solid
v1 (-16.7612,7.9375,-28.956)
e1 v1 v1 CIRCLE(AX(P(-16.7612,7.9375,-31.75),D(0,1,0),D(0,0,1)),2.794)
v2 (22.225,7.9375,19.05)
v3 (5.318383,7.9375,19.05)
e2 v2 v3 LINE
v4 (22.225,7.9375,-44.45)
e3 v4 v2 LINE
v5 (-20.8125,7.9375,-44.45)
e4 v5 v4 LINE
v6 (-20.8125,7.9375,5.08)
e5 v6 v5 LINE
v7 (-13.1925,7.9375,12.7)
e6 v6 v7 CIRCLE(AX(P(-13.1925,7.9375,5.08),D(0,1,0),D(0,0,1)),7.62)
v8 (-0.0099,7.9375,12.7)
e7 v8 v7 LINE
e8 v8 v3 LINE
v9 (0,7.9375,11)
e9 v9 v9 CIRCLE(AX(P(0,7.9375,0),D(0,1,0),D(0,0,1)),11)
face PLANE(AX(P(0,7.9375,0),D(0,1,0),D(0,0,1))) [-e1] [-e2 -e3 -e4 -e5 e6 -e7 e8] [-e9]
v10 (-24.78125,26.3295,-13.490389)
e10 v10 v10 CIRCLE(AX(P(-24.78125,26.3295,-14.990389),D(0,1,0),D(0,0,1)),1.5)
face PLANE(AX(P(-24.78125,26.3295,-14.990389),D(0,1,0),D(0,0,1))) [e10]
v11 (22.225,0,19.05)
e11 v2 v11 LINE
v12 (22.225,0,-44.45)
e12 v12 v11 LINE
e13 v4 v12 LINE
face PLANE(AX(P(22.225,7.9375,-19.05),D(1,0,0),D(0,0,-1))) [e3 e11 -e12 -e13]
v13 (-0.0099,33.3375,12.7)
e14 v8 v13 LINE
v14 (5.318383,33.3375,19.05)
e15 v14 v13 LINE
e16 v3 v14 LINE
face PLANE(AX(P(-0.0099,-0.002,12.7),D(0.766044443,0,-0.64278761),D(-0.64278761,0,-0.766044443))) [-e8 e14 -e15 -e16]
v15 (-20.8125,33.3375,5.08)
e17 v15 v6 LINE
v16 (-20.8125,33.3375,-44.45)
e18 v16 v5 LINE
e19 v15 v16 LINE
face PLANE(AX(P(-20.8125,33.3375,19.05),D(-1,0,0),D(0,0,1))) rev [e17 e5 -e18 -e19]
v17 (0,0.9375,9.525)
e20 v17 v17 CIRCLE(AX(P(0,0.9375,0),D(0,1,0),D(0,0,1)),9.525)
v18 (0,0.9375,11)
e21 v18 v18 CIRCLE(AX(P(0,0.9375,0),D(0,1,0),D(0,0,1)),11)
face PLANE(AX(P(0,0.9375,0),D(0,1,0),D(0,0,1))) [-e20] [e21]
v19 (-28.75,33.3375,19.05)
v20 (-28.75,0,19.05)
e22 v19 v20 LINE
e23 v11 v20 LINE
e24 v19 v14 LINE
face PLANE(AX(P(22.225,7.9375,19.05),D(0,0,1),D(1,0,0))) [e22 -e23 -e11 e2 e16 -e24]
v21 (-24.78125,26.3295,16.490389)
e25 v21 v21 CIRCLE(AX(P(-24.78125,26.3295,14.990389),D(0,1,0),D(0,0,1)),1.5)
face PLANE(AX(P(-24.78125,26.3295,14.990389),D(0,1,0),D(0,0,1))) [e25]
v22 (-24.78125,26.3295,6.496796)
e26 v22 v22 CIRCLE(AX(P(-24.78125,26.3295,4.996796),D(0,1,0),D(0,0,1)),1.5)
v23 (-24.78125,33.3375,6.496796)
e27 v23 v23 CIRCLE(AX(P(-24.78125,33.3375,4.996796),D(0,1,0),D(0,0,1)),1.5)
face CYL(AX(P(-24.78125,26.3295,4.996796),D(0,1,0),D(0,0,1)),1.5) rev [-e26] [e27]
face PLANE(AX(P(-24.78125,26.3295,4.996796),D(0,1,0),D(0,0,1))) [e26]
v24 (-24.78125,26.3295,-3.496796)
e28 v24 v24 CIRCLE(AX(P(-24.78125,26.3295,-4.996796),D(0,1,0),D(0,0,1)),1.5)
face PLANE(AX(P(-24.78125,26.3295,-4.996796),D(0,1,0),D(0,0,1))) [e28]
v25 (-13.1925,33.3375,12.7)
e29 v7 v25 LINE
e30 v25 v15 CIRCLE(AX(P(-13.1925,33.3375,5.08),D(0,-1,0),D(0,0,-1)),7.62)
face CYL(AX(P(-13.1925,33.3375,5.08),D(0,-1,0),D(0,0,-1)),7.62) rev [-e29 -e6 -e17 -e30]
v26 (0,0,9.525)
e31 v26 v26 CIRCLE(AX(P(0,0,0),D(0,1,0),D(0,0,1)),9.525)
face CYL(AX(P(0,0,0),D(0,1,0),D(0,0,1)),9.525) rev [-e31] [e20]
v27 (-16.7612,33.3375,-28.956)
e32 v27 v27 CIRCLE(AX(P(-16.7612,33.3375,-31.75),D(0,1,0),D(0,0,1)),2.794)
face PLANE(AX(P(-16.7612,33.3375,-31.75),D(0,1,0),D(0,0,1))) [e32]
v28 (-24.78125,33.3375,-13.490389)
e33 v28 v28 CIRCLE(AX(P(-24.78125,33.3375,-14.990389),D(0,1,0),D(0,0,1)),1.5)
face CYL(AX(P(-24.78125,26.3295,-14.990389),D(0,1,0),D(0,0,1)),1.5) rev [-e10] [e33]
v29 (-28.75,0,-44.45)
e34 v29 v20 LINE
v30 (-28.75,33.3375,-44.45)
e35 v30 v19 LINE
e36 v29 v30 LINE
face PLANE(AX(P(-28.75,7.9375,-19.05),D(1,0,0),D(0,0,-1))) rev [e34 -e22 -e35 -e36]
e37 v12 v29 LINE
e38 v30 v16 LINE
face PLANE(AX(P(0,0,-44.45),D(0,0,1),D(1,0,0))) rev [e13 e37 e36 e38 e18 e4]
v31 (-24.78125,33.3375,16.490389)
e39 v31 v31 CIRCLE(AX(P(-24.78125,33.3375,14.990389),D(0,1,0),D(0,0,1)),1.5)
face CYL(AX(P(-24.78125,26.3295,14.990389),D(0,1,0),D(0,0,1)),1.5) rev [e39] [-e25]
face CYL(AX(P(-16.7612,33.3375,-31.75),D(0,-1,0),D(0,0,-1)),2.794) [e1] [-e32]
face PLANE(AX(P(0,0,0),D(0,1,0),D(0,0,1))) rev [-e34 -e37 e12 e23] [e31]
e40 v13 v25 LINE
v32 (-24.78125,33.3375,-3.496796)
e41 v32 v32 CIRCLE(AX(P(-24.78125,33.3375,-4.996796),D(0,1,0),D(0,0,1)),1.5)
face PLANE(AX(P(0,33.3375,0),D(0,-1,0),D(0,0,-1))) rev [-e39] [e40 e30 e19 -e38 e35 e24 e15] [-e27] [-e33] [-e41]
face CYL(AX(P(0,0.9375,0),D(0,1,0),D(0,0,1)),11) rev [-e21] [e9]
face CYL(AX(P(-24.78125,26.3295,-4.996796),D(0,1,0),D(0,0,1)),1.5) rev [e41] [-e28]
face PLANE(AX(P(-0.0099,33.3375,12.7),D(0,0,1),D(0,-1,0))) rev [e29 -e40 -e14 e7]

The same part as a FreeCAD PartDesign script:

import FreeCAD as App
import Part
import Sketcher
from FreeCAD import Vector
Q = App.Units.Quantity


def edges_at(feature, points):
    """Names of the edges that pass closest to the given points."""
    edges = feature.Shape.Edges
    near = lambda p: min(range(len(edges)), key=lambda i: edges[i].distToShape(Part.Vertex(*p))[0])
    return sorted({f"Edge{near(p) + 1}" for p in points})

doc = App.newDocument("Part")
body = doc.addObject("PartDesign::Body", "Body")

# Sketch on XZ plane
sketch1 = doc.addObject("Sketcher::SketchObject", "Sketch")
body.addObject(sketch1)
sketch1.AttachmentSupport = (doc.XZ_Plane, [""])
sketch1.MapMode = "FlatFace"
sketch1.addGeometry([
    Part.LineSegment(Vector(-29, -19, 0), Vector(-29, 19, 0)),
    Part.LineSegment(Vector(-29, 19, 0), Vector(22, 19, 0)),
    Part.LineSegment(Vector(22, 19, 0), Vector(22, -19, 0)),
    Part.LineSegment(Vector(22, -19, 0), Vector(-29, -19, 0)),
], False)
sketch1.addConstraint([
    Sketcher.Constraint("Coincident", 0, 2, 1, 1),
    Sketcher.Constraint("Coincident", 1, 2, 2, 1),
    Sketcher.Constraint("Coincident", 2, 2, 3, 1),
    Sketcher.Constraint("Coincident", 3, 2, 0, 1),
    Sketcher.Constraint("Vertical", 0),
    Sketcher.Constraint("Horizontal", 1),
    Sketcher.Constraint("Vertical", 2),
    Sketcher.Constraint("Horizontal", 3),
    Sketcher.Constraint("DistanceY", 0, 1, 0, 2, Q("1.5 in")),
    Sketcher.Constraint("DistanceY", -1, 1, 0, 2, Q("0.75 in")),
    Sketcher.Constraint("DistanceX", -1, 1, 1, 2, Q("0.875 in")),
    Sketcher.Constraint("DistanceX", 1, 1, 1, 2, 50.975),
])
pad1 = doc.addObject("PartDesign::Pad", "Pad")
body.addObject(pad1)
pad1.Profile = sketch1
pad1.Length = Q("0.3125 in")
pad1.Reversed = True

# Sketch on XZ plane
sketch2 = doc.addObject("Sketcher::SketchObject", "Sketch001")
body.addObject(sketch2)
sketch2.AttachmentSupport = (doc.XZ_Plane, [""])
sketch2.MapMode = "FlatFace"
sketch2.AttachmentOffset = App.Placement(Vector(0, 0, -0.3125 * 25.4), App.Rotation())
sketch2.addGeometry(Part.Circle(Vector(0, 0, 0), Vector(0, 0, 1), 11), False)
sketch2.addConstraint([
    Sketcher.Constraint("Coincident", 0, 3, -1, 1),
    Sketcher.Constraint("Diameter", 0, 22.0),
])
pocket1 = doc.addObject("PartDesign::Pocket", "Pocket")
body.addObject(pocket1)
pocket1.Profile = sketch2
pocket1.Length = 7
pocket1.Reversed = True

# Sketch on XZ plane
sketch3 = doc.addObject("Sketcher::SketchObject", "Sketch002")
body.addObject(sketch3)
sketch3.AttachmentSupport = (doc.XZ_Plane, [""])
sketch3.MapMode = "FlatFace"
sketch3.AttachmentOffset = App.Placement(Vector(0, 0, -0.9375), App.Rotation())
sketch3.addGeometry(Part.Circle(Vector(0, 0, 0), Vector(0, 0, 1), 10), False)
sketch3.addConstraint([
    Sketcher.Constraint("Coincident", 0, 3, -1, 1),
    Sketcher.Constraint("Diameter", 0, Q("0.75 in")),
])
pocket2 = doc.addObject("PartDesign::Pocket", "Pocket001")
body.addObject(pocket2)
pocket2.Profile = sketch3
pocket2.Type = "ThroughAll"
pocket2.Midplane = True

# Sketch on XZ plane
sketch4 = doc.addObject("Sketcher::SketchObject", "Sketch003")
body.addObject(sketch4)
sketch4.AttachmentSupport = (doc.XZ_Plane, [""])
sketch4.MapMode = "FlatFace"
sketch4.AttachmentOffset = App.Placement(Vector(0, 0, -0.3125 * 25.4), App.Rotation())
sketch4.addGeometry([
    Part.LineSegment(Vector(-29, -19, 0), Vector(-29, 19, 0)),
    Part.LineSegment(Vector(-29, 19, 0), Vector(-21, 19, 0)),
    Part.LineSegment(Vector(-21, 19, 0), Vector(-21, -19, 0)),
    Part.LineSegment(Vector(-21, -19, 0), Vector(-29, -19, 0)),
], False)
sketch4.addConstraint([
    Sketcher.Constraint("Coincident", 0, 2, 1, 1),
    Sketcher.Constraint("Coincident", 1, 2, 2, 1),
    Sketcher.Constraint("Coincident", 2, 2, 3, 1),
    Sketcher.Constraint("Coincident", 3, 2, 0, 1),
    Sketcher.Constraint("Vertical", 0),
    Sketcher.Constraint("Horizontal", 1),
    Sketcher.Constraint("Vertical", 2),
    Sketcher.Constraint("Horizontal", 3),
    Sketcher.Constraint("DistanceY", 0, 1, 0, 2, Q("1.5 in")),
    Sketcher.Constraint("DistanceX", 1, 1, 1, 2, Q("0.3125 in")),
    Sketcher.Constraint("DistanceY", -1, 1, 0, 2, Q("0.75 in")),
    Sketcher.Constraint("DistanceX", 0, 2, -1, 1, 28.75),
])
pad2 = doc.addObject("PartDesign::Pad", "Pad001")
body.addObject(pad2)
pad2.Profile = sketch4
pad2.Length = Q("1 in")
pad2.Reversed = True

# Sketch on YZ plane
sketch5 = doc.addObject("Sketcher::SketchObject", "Sketch004")
body.addObject(sketch5)
sketch5.AttachmentSupport = (doc.YZ_Plane, [""])
sketch5.MapMode = "FlatFace"
sketch5.AttachmentOffset = App.Placement(Vector(0, 0, -20.8125), App.Rotation())
sketch5.addGeometry([
    Part.LineSegment(Vector(33, 19, 0), Vector(8, 19, 0)),
    Part.LineSegment(Vector(8, 19, 0), Vector(8, 13, 0)),
    Part.LineSegment(Vector(8, 13, 0), Vector(33, 13, 0)),
    Part.LineSegment(Vector(33, 13, 0), Vector(33, 19, 0)),
], False)
sketch5.addConstraint([
    Sketcher.Constraint("Coincident", 0, 2, 1, 1),
    Sketcher.Constraint("Coincident", 1, 2, 2, 1),
    Sketcher.Constraint("Coincident", 2, 2, 3, 1),
    Sketcher.Constraint("Coincident", 3, 2, 0, 1),
    Sketcher.Constraint("Horizontal", 0),
    Sketcher.Constraint("Vertical", 1),
    Sketcher.Constraint("Horizontal", 2),
    Sketcher.Constraint("Vertical", 3),
    Sketcher.Constraint("DistanceX", 0, 2, 0, 1, Q("1 in")),
    Sketcher.Constraint("DistanceY", 1, 2, 1, 1, Q("0.25 in")),
    Sketcher.Constraint("DistanceY", -1, 1, 1, 2, Q("0.5 in")),
    Sketcher.Constraint("DistanceX", -1, 1, 0, 2, Q("0.3125 in")),
])
pad3 = doc.addObject("PartDesign::Pad", "Pad002")
body.addObject(pad3)
pad3.Profile = sketch5
pad3.Length = Q("0.819 in")

# Sketch on XZ plane
sketch6 = doc.addObject("Sketcher::SketchObject", "Sketch005")
body.addObject(sketch6)
sketch6.AttachmentSupport = (doc.XZ_Plane, [""])
sketch6.MapMode = "FlatFace"
sketch6.AttachmentOffset = App.Placement(Vector(0, 0, -1.3125 * 25.4), App.Rotation())
sketch6.addGeometry([
    Part.LineSegment(Vector(5, 19, 0), Vector(0, 13, 0)),
    Part.LineSegment(Vector(0, 13, 0), Vector(0, 19, 0)),
    Part.LineSegment(Vector(0, 19, 0), Vector(5, 19, 0)),
], False)
sketch6.addConstraint([
    Sketcher.Constraint("Coincident", 0, 2, 1, 1),
    Sketcher.Constraint("Coincident", 1, 2, 2, 1),
    Sketcher.Constraint("Coincident", 2, 2, 0, 1),
    Sketcher.Constraint("Vertical", 1),
    Sketcher.Constraint("Horizontal", 2),
    Sketcher.Constraint("Angle", 0, Q("-130 deg")),
    Sketcher.Constraint("DistanceY", 1, 1, 1, 2, Q("0.25 in")),
    Sketcher.Constraint("DistanceY", -1, 1, 0, 2, Q("0.5 in")),
    Sketcher.Constraint("DistanceX", 0, 2, -1, 1, 0.0099),
])
pad4 = doc.addObject("PartDesign::Pad", "Pad003")
body.addObject(pad4)
pad4.Profile = sketch6
pad4.Type = "UpToFirst"
doc.recompute()

fillet = doc.addObject("PartDesign::Fillet", "Fillet")
body.addObject(fillet)
fillet.Base = (pad4, edges_at(pad4, [(-20.812, 20.637, 12.7)]))
fillet.Radius = Q("0.3 in")

# Sketch on XZ plane
sketch7 = doc.addObject("Sketcher::SketchObject", "Sketch006")
body.addObject(sketch7)
sketch7.AttachmentSupport = (doc.XZ_Plane, [""])
sketch7.MapMode = "FlatFace"
sketch7.AttachmentOffset = App.Placement(Vector(0, 0, -1.3125 * 25.4), App.Rotation())
sketch7.addGeometry([
    Part.Circle(Vector(-24.8, -15, 0), Vector(0, 0, 1), 1.5),
    Part.Circle(Vector(-24.8, -5, 0), Vector(0, 0, 1), 1.5),
    Part.Circle(Vector(-24.8, 15, 0), Vector(0, 0, 1), 1.5),
    Part.Circle(Vector(-24.8, 5, 0), Vector(0, 0, 1), 1.5),
], False)
sketch7.addConstraint([
    Sketcher.Constraint("Equal", 0, 1),
    Sketcher.Constraint("Equal", 1, 2),
    Sketcher.Constraint("Equal", 2, 3),
    Sketcher.Constraint("Symmetric", 0, 3, 2, 3, -1),
    Sketcher.Constraint("Symmetric", 1, 3, 3, 3, -1),
    Sketcher.Constraint("Vertical", 0, 3, 1, 3),
    Sketcher.Constraint("Diameter", 0, 3.0),
    Sketcher.Constraint("DistanceX", 0, 3, -1, 1, 24.78125),
    Sketcher.Constraint("DistanceY", 0, 3, -1, 1, 14.990389),
    Sketcher.Constraint("DistanceY", 1, 3, -1, 1, 4.996796),
])
pocket3 = doc.addObject("PartDesign::Pocket", "Pocket002")
body.addObject(pocket3)
pocket3.Profile = sketch7
pocket3.Length = 7.008
pocket3.Reversed = True

# Sketch on XY plane
sketch8 = doc.addObject("Sketcher::SketchObject", "Sketch007")
body.addObject(sketch8)
sketch8.AttachmentSupport = (doc.XY_Plane, [""])
sketch8.MapMode = "FlatFace"
sketch8.AttachmentOffset = App.Placement(Vector(0, 0, -0.75 * 25.4), App.Rotation())
sketch8.addGeometry([
    Part.LineSegment(Vector(-21, 8, 0), Vector(22, 8, 0)),  # 0
    Part.LineSegment(Vector(22, 8, 0), Vector(22, 0, 0)),  # 1
    Part.LineSegment(Vector(22, 0, 0), Vector(-29, 0, 0)),  # 2
    Part.LineSegment(Vector(-29, 0, 0), Vector(-29, 33, 0)),  # 3
    Part.LineSegment(Vector(-29, 33, 0), Vector(-21, 33, 0)),  # 4
    Part.LineSegment(Vector(-21, 33, 0), Vector(-21, 8, 0)),  # 5
], False)
sketch8.addConstraint([
    Sketcher.Constraint("Coincident", 0, 2, 1, 1),
    Sketcher.Constraint("Coincident", 1, 2, 2, 1),
    Sketcher.Constraint("Coincident", 2, 2, 3, 1),
    Sketcher.Constraint("Coincident", 3, 2, 4, 1),
    Sketcher.Constraint("Coincident", 4, 2, 5, 1),
    Sketcher.Constraint("Coincident", 5, 2, 0, 1),
    Sketcher.Constraint("Horizontal", 0),
    Sketcher.Constraint("Vertical", 1),
    Sketcher.Constraint("Horizontal", 2),
    Sketcher.Constraint("Vertical", 3),
    Sketcher.Constraint("Horizontal", 4),
    Sketcher.Constraint("Vertical", 5),
    Sketcher.Constraint("PointOnObject", 1, 2, -1),
    Sketcher.Constraint("Equal", 4, 1),
    Sketcher.Constraint("DistanceY", 5, 2, 5, 1, Q("1 in")),
    Sketcher.Constraint("DistanceX", 4, 1, 4, 2, Q("0.3125 in")),
    Sketcher.Constraint("DistanceX", -1, 1, 0, 2, Q("0.875 in")),
    Sketcher.Constraint("DistanceX", 0, 1, 0, 2, 43.0375),
])
pad5 = doc.addObject("PartDesign::Pad", "Pad004")
body.addObject(pad5)
pad5.Profile = sketch8
pad5.Length = Q("1 in")
pad5.Reversed = True

# Sketch on XZ plane
sketch9 = doc.addObject("Sketcher::SketchObject", "Sketch008")
body.addObject(sketch9)
sketch9.AttachmentSupport = (doc.XZ_Plane, [""])
sketch9.MapMode = "FlatFace"
sketch9.AttachmentOffset = App.Placement(Vector(0, 0, -0.3125 * 25.4), App.Rotation())
sketch9.addGeometry(Part.Circle(Vector(-16.8, -31.8, 0), Vector(0, 0, 1), 2.8), False)
sketch9.addConstraint([
    Sketcher.Constraint("Diameter", 0, Q("0.22 in")),
    Sketcher.Constraint("DistanceY", 0, 3, -1, 1, Q("1.25 in")),
    Sketcher.Constraint("DistanceX", 0, 3, -1, 1, 16.7612),
])
pad6 = doc.addObject("PartDesign::Pad", "Pad005")
body.addObject(pad6)
pad6.Profile = sketch9
pad6.Length = Q("1 in")
pad6.Reversed = True

doc.recompute()
